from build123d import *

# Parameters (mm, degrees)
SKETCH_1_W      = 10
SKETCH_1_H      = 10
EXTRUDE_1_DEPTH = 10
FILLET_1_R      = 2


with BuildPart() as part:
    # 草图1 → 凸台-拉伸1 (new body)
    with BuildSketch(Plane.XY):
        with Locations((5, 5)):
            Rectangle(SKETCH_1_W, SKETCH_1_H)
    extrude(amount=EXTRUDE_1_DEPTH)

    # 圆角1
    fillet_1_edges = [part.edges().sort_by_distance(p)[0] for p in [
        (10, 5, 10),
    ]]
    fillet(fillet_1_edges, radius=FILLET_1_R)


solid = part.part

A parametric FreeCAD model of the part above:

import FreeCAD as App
import Part
import Sketcher
from FreeCAD import Vector
Q = App.Units.Quantity


def edges_at(feature, points):
    """Names of the edges that pass closest to the given points."""
    edges = feature.Shape.Edges
    near = lambda p: min(range(len(edges)), key=lambda i: edges[i].distToShape(Part.Vertex(*p))[0])
    return sorted({f"Edge{near(p) + 1}" for p in points})


def add_polygon(sketch, points):
    """Adds a closed chain of lines whose ends are joined by coincident constraints."""
    first, n = sketch.GeometryCount, len(points)
    for a, b in zip(points, points[1:] + points[:1]):
        sketch.addGeometry(Part.LineSegment(App.Vector(*a, 0), App.Vector(*b, 0)), False)
    for i in range(n):
        sketch.addConstraint(Sketcher.Constraint("Coincident", first + i, 2, first + (i + 1) % n, 1))

doc = App.newDocument("Part")
params = doc.addObject("Spreadsheet::Sheet", "Params")
for row, (alias, value) in enumerate([
    ("sketch1_width", "10 mm"),
    ("pad1_length", "10 mm"),
    ("fillet_radius", "2 mm"),
], start=1):
    params.set(f"A{row}", alias)
    params.set(f"B{row}", "=" + value)
    params.setAlias(f"B{row}", alias)

body = doc.addObject("PartDesign::Body", "Body")

sketch1 = body.newObject("Sketcher::SketchObject", "Sketch")
sketch1.AttachmentSupport = (doc.getObject("XY_Plane"), [""])
sketch1.MapMode = "FlatFace"
add_polygon(sketch1, [(0, 10), (0, 0), (10, 0), (10, 10)])
sketch1.addConstraint(Sketcher.Constraint("Vertical", 0))
sketch1.addConstraint(Sketcher.Constraint("Horizontal", 1))
sketch1.addConstraint(Sketcher.Constraint("Vertical", 2))
sketch1.addConstraint(Sketcher.Constraint("Horizontal", 3))
sketch1.addConstraint(Sketcher.Constraint("Coincident", 0, 2, -1, 1))
sketch1.addConstraint(Sketcher.Constraint("Equal", 3, 0))
sketch1.addConstraint(Sketcher.Constraint("DistanceX", 1, 1, 1, 2, Q("10 mm")))
sketch1.setExpression("Constraints[10]", "Params.sketch1_width")
pad1 = body.newObject("PartDesign::Pad", "Pad")
pad1.Profile = sketch1
pad1.setExpression("Length", "Params.pad1_length")
doc.recompute()

fillet = body.newObject("PartDesign::Fillet", "Fillet")
fillet.Base = (pad1, edges_at(pad1, [(10, 5, 10)]))
fillet.setExpression("Radius", "Params.fillet_radius")

doc.recompute()
